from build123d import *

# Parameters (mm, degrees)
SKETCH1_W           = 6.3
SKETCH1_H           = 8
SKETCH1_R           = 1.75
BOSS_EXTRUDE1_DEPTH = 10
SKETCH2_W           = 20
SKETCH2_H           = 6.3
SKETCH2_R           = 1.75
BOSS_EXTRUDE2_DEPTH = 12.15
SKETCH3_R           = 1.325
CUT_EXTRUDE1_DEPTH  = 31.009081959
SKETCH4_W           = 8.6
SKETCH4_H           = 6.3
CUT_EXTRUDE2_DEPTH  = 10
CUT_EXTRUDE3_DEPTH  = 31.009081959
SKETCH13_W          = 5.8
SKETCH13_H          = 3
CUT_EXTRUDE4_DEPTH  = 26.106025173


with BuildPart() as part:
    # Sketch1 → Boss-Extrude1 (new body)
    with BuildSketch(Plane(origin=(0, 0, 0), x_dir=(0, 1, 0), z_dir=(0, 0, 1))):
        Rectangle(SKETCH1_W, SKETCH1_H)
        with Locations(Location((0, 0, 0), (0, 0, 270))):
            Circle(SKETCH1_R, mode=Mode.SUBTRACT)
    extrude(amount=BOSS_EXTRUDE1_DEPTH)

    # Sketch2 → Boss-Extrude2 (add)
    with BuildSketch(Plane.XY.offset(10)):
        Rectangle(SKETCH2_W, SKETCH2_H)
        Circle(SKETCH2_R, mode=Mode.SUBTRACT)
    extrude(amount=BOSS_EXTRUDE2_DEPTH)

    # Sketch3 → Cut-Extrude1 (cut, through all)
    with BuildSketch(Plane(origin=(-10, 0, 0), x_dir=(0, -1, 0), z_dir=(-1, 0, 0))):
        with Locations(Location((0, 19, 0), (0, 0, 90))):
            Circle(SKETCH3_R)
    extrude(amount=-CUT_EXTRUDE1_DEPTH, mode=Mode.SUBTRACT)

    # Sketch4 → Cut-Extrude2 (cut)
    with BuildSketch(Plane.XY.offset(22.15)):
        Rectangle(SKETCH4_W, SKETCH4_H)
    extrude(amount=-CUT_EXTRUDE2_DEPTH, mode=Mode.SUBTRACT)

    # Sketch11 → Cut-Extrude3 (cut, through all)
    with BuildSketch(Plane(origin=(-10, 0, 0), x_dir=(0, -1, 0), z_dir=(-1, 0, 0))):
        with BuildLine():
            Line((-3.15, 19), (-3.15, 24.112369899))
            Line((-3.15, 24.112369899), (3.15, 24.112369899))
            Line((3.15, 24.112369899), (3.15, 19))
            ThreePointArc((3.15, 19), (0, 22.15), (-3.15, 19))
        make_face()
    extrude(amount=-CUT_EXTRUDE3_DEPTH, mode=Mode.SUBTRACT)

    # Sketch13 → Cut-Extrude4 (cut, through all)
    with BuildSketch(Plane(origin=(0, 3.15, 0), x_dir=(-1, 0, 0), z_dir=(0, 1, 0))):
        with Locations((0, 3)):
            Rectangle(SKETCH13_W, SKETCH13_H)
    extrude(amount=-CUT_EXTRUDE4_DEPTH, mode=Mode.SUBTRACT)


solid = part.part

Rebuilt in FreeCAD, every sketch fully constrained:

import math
import FreeCAD as App
import Part
import Sketcher
Q = App.Units.Quantity


def add_polygon(sketch, points):
    """Adds a closed chain of lines whose ends are joined by coincident constraints."""
    first, n = sketch.GeometryCount, len(points)
    for a, b in zip(points, points[1:] + points[:1]):
        sketch.addGeometry(Part.LineSegment(App.Vector(*a, 0), App.Vector(*b, 0)), False)
    for i in range(n):
        sketch.addConstraint(Sketcher.Constraint("Coincident", first + i, 2, first + (i + 1) % n, 1))

doc = App.newDocument("Part")
body = doc.addObject("PartDesign::Body", "Body")

# Sketch on XY plane
sketch1 = doc.addObject("Sketcher::SketchObject", "Sketch")
body.addObject(sketch1)
sketch1.AttachmentSupport = (doc.XY_Plane, [""])
sketch1.MapMode = "FlatFace"
add_polygon(sketch1, [(-4, -3.1), (4, -3.1), (4, 3.1), (-4, 3.1)])  # lines 0-3
sketch1.addGeometry(Part.Circle(App.Vector(0, 0, 0), App.Vector(0, 0, 1), 1.8), False)  # 4
sketch1.addConstraint(Sketcher.Constraint("Horizontal", 0))
sketch1.addConstraint(Sketcher.Constraint("Vertical", 1))
sketch1.addConstraint(Sketcher.Constraint("Horizontal", 2))
sketch1.addConstraint(Sketcher.Constraint("Vertical", 3))
sketch1.addConstraint(Sketcher.Constraint("Coincident", 4, 3, -1, 1))
sketch1.addConstraint(Sketcher.Constraint("Symmetric", 0, 2, 2, 2, -1, 1))
sketch1.addConstraint(Sketcher.Constraint("Diameter", 4, Q("3.5 mm")))
sketch1.addConstraint(Sketcher.Constraint("DistanceX", 0, 1, 0, 2, Q("8 mm")))
sketch1.addConstraint(Sketcher.Constraint("DistanceY", 1, 1, 1, 2, Q("6.3 mm")))
pad1 = doc.addObject("PartDesign::Pad", "Pad")
body.addObject(pad1)
pad1.Profile = sketch1
pad1.Length = 10

# Sketch on XY plane
sketch2 = doc.addObject("Sketcher::SketchObject", "Sketch001")
body.addObject(sketch2)
sketch2.AttachmentSupport = (doc.XY_Plane, [""])
sketch2.MapMode = "FlatFace"
sketch2.AttachmentOffset = App.Placement(App.Vector(0, 0, 10), App.Rotation())
add_polygon(sketch2, [(-10, 3.1), (-10, -3.1), (10, -3.1), (10, 3.1)])  # lines 0-3
sketch2.addGeometry(Part.Circle(App.Vector(0, 0, 0), App.Vector(0, 0, 1), 1.8), False)  # 4
sketch2.addConstraint(Sketcher.Constraint("Vertical", 0))
sketch2.addConstraint(Sketcher.Constraint("Horizontal", 1))
sketch2.addConstraint(Sketcher.Constraint("Vertical", 2))
sketch2.addConstraint(Sketcher.Constraint("Horizontal", 3))
sketch2.addConstraint(Sketcher.Constraint("Coincident", 4, 3, -1, 1))
sketch2.addConstraint(Sketcher.Constraint("Symmetric", 0, 2, 2, 2, -1, 1))
sketch2.addConstraint(Sketcher.Constraint("Diameter", 4, Q("3.5 mm")))
sketch2.addConstraint(Sketcher.Constraint("DistanceX", 1, 1, 1, 2, Q("20 mm")))
sketch2.addConstraint(Sketcher.Constraint("DistanceY", 0, 2, 0, 1, Q("6.3 mm")))
pad2 = doc.addObject("PartDesign::Pad", "Pad001")
body.addObject(pad2)
pad2.Profile = sketch2
pad2.Length = 12.15

# Sketch on YZ plane
sketch3 = doc.addObject("Sketcher::SketchObject", "Sketch002")
body.addObject(sketch3)
sketch3.AttachmentSupport = (doc.YZ_Plane, [""])
sketch3.MapMode = "FlatFace"
sketch3.AttachmentOffset = App.Placement(App.Vector(0, 0, -10), App.Rotation())
sketch3.addGeometry(Part.Circle(App.Vector(0, 19, 0), App.Vector(0, 0, 1), 1.3), False)
sketch3.addConstraint(Sketcher.Constraint("PointOnObject", 0, 3, -2))
sketch3.addConstraint(Sketcher.Constraint("Diameter", 0, Q("2.65 mm")))
sketch3.addConstraint(Sketcher.Constraint("DistanceY", -1, 1, 0, 3, Q("19 mm")))
pocket1 = doc.addObject("PartDesign::Pocket", "Pocket")
body.addObject(pocket1)
pocket1.Profile = sketch3
pocket1.Type = "ThroughAll"
pocket1.Reversed = True

# Sketch on XY plane
sketch4 = doc.addObject("Sketcher::SketchObject", "Sketch003")
body.addObject(sketch4)
sketch4.AttachmentSupport = (doc.XY_Plane, [""])
sketch4.MapMode = "FlatFace"
sketch4.AttachmentOffset = App.Placement(App.Vector(0, 0, 22.15), App.Rotation())
add_polygon(sketch4, [(-4, 3), (-4, -3), (4, -3), (4, 3)])  # lines 0-3
sketch4.addConstraint(Sketcher.Constraint("Vertical", 0))
sketch4.addConstraint(Sketcher.Constraint("Horizontal", 1))
sketch4.addConstraint(Sketcher.Constraint("Vertical", 2))
sketch4.addConstraint(Sketcher.Constraint("Horizontal", 3))
sketch4.addConstraint(Sketcher.Constraint("Symmetric", 0, 2, 2, 2, -1, 1))
sketch4.addConstraint(Sketcher.Constraint("DistanceX", 1, 1, 1, 2, Q("8.6 mm")))
sketch4.addConstraint(Sketcher.Constraint("DistanceY", 0, 2, 0, 1, Q("6.3 mm")))
pocket2 = doc.addObject("PartDesign::Pocket", "Pocket001")
body.addObject(pocket2)
pocket2.Profile = sketch4
pocket2.Length = 10

# Sketch on YZ plane
sketch5 = doc.addObject("Sketcher::SketchObject", "Sketch004")
body.addObject(sketch5)
sketch5.AttachmentSupport = (doc.YZ_Plane, [""])
sketch5.MapMode = "FlatFace"
sketch5.AttachmentOffset = App.Placement(App.Vector(0, 0, -10), App.Rotation())
sketch5.addGeometry(Part.LineSegment(App.Vector(3.1, 24.1, 0), App.Vector(3.1, 19, 0)), False)
sketch5.addGeometry(Part.ArcOfCircle(Part.Circle(App.Vector(0, 19, 0), App.Vector(0, 0, 1), 3.1), math.radians(0), math.radians(180)), False)
sketch5.addGeometry(Part.LineSegment(App.Vector(-3.1, 19, 0), App.Vector(-3.1, 24.1, 0)), False)
sketch5.addGeometry(Part.LineSegment(App.Vector(-3.1, 24.1, 0), App.Vector(3.1, 24.1, 0)), False)
sketch5.addConstraint(Sketcher.Constraint("Tangent", 0, 2, 1, 1))
sketch5.addConstraint(Sketcher.Constraint("Tangent", 1, 2, 2, 1))
sketch5.addConstraint(Sketcher.Constraint("Coincident", 2, 2, 3, 1))
sketch5.addConstraint(Sketcher.Constraint("Coincident", 3, 2, 0, 1))
sketch5.addConstraint(Sketcher.Constraint("Vertical", 0))
sketch5.addConstraint(Sketcher.Constraint("Vertical", 2))
sketch5.addConstraint(Sketcher.Constraint("Horizontal", 3))
sketch5.addConstraint(Sketcher.Constraint("PointOnObject", 1, 3, -2))
sketch5.addConstraint(Sketcher.Constraint("Radius", 1, Q("3.15 mm")))
sketch5.addConstraint(Sketcher.Constraint("DistanceY", -1, 1, 1, 3, Q("19 mm")))
sketch5.addConstraint(Sketcher.Constraint("DistanceY", 0, 2, 0, 1, Q("5.11237 mm")))
pocket3 = doc.addObject("PartDesign::Pocket", "Pocket002")
body.addObject(pocket3)
pocket3.Profile = sketch5
pocket3.Type = "ThroughAll"
pocket3.Reversed = True

# Sketch on XZ plane
sketch6 = doc.addObject("Sketcher::SketchObject", "Sketch005")
body.addObject(sketch6)
sketch6.AttachmentSupport = (doc.XZ_Plane, [""])
sketch6.MapMode = "FlatFace"
sketch6.AttachmentOffset = App.Placement(App.Vector(0, 0, -3.15), App.Rotation())
add_polygon(sketch6, [(2.9, 4.5), (2.9, 1.5), (-2.9, 1.5), (-2.9, 4.5)])  # lines 0-3
sketch6.addConstraint(Sketcher.Constraint("Vertical", 0))
sketch6.addConstraint(Sketcher.Constraint("Horizontal", 1))
sketch6.addConstraint(Sketcher.Constraint("Vertical", 2))
sketch6.addConstraint(Sketcher.Constraint("Horizontal", 3))
sketch6.addConstraint(Sketcher.Constraint("DistanceY", 0, 2, 0, 1, Q("3 mm")))
sketch6.addConstraint(Sketcher.Constraint("DistanceX", 1, 2, 1, 1, Q("5.8 mm")))
sketch6.addConstraint(Sketcher.Constraint("DistanceX", -1, 1, 0, 2, Q("2.9 mm")))
sketch6.addConstraint(Sketcher.Constraint("DistanceY", -1, 1, 0, 2, Q("1.5 mm")))
pocket4 = doc.addObject("PartDesign::Pocket", "Pocket003")
body.addObject(pocket4)
pocket4.Profile = sketch6
pocket4.Type = "ThroughAll"
pocket4.Reversed = True

doc.recompute()
